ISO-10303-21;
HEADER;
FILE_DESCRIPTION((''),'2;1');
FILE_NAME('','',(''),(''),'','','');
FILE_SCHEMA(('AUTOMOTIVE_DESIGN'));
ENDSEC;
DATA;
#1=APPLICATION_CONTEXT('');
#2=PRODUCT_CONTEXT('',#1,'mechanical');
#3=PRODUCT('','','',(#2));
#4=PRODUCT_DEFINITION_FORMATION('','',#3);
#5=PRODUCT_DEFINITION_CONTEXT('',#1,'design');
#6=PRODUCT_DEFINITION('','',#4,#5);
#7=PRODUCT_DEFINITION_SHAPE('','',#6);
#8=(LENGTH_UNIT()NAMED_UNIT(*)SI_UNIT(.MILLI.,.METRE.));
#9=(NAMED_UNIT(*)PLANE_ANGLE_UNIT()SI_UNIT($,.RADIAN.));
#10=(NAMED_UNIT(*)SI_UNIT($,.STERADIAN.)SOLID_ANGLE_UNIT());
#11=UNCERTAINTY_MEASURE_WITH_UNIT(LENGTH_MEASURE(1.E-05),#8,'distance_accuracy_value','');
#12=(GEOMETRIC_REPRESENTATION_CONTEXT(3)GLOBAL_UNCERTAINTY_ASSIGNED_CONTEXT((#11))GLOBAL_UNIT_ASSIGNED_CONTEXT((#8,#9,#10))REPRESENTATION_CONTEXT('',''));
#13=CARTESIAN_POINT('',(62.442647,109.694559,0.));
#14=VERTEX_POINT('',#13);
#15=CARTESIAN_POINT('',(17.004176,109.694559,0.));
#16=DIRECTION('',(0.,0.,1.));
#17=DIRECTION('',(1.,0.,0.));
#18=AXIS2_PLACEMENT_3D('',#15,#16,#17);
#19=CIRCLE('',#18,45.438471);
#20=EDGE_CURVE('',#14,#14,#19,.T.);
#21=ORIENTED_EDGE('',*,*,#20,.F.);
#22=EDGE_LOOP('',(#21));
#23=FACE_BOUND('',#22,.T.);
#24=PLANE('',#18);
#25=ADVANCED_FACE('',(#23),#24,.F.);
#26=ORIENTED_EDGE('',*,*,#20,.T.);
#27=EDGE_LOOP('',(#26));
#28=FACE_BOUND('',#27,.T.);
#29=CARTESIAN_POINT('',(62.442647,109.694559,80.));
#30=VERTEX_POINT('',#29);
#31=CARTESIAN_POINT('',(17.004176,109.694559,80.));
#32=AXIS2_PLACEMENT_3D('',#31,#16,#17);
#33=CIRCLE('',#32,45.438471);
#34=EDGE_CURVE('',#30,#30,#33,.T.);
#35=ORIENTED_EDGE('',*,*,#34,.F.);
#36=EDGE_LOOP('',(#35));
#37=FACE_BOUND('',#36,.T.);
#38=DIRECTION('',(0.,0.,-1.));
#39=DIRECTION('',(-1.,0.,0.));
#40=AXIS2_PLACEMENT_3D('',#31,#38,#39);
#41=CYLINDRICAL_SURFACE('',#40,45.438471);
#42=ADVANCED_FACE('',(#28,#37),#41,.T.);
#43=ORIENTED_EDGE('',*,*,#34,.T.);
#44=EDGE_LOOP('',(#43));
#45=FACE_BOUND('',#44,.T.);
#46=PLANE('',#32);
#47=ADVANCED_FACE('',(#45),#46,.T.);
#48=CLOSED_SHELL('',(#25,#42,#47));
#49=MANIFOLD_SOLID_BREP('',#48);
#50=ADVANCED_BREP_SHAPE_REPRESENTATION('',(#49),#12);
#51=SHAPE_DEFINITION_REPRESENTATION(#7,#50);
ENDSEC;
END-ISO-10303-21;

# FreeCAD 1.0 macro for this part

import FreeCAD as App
import Part
import Sketcher
from FreeCAD import Vector

doc = App.newDocument("Part")
body = doc.addObject("PartDesign::Body", "Body")

sketch1 = body.newObject("Sketcher::SketchObject", "Sketch")
sketch1.AttachmentSupport = (doc.getObject("XY_Plane"), [""])
sketch1.MapMode = "FlatFace"
sketch1.addGeometry(Part.Circle(Vector(17, 110, 0), Vector(0, 0, 1), 45), False)
sketch1.addConstraint([
    Sketcher.Constraint("Diameter", 0, 90.876941),
    Sketcher.Constraint("DistanceY", -1, 1, 0, 3, 109.694559),
    Sketcher.Constraint("DistanceX", -1, 1, 0, 3, 17.004176),
])
pad1 = body.newObject("PartDesign::Pad", "Pad")
pad1.Profile = sketch1
pad1.Length = 80

doc.recompute()
